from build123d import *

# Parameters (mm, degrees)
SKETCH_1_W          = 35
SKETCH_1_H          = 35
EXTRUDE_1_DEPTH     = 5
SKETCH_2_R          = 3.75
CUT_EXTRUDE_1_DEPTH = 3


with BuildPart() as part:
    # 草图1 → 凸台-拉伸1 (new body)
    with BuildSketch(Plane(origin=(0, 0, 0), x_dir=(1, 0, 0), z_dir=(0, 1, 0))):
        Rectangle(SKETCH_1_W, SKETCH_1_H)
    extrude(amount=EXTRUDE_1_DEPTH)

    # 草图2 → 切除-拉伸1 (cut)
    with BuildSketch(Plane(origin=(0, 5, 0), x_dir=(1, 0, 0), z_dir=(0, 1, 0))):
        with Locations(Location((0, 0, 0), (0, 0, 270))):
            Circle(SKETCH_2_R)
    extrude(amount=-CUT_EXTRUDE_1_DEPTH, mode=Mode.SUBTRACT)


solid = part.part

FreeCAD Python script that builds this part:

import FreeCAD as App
import Part
import Sketcher
from FreeCAD import Vector
Q = App.Units.Quantity


def add_polygon(sketch, points):
    """Adds a closed chain of lines whose ends are joined by coincident constraints."""
    first, n = sketch.GeometryCount, len(points)
    for a, b in zip(points, points[1:] + points[:1]):
        sketch.addGeometry(Part.LineSegment(App.Vector(*a, 0), App.Vector(*b, 0)), False)
    for i in range(n):
        sketch.addConstraint(Sketcher.Constraint("Coincident", first + i, 2, first + (i + 1) % n, 1))

doc = App.newDocument("Part")
params = doc.addObject("Spreadsheet::Sheet", "Params")
for row, (alias, value) in enumerate([
    ("sketch1_width", "35 mm"),
    ("pad1_length", "5 mm"),
    ("sketch2_diameter", "7.5 mm"),
    ("pocket1_length", "3 mm"),
], start=1):
    params.set(f"A{row}", alias)
    params.set(f"B{row}", "=" + value)
    params.setAlias(f"B{row}", alias)

body = doc.addObject("PartDesign::Body", "Body")

sketch1 = body.newObject("Sketcher::SketchObject", "Sketch")
sketch1.AttachmentSupport = (doc.getObject("XZ_Plane"), [""])
sketch1.MapMode = "FlatFace"
add_polygon(sketch1, [(-17.5, -17.5), (-17.5, 17.5), (17.5, 17.5), (17.5, -17.5)])
sketch1.addConstraint(Sketcher.Constraint("Vertical", 0))
sketch1.addConstraint(Sketcher.Constraint("Horizontal", 1))
sketch1.addConstraint(Sketcher.Constraint("Vertical", 2))
sketch1.addConstraint(Sketcher.Constraint("Horizontal", 3))
sketch1.addConstraint(Sketcher.Constraint("Symmetric", 0, 2, 2, 2, -1, 1))
sketch1.addConstraint(Sketcher.Constraint("Equal", 3, 0))
sketch1.addConstraint(Sketcher.Constraint("DistanceX", 1, 1, 1, 2, Q("35 mm")))
sketch1.setExpression("Constraints[10]", "Params.sketch1_width")
pad1 = body.newObject("PartDesign::Pad", "Pad")
pad1.Profile = sketch1
pad1.setExpression("Length", "Params.pad1_length")
pad1.Reversed = True

sketch2 = body.newObject("Sketcher::SketchObject", "Sketch001")
sketch2.AttachmentSupport = (doc.getObject("XZ_Plane"), [""])
sketch2.MapMode = "FlatFace"
sketch2.AttachmentOffset = App.Placement(Vector(0, 0, -5), App.Rotation())
sketch2.addGeometry(Part.Circle(Vector(0, 0, 0), Vector(0, 0, 1), 3.75), False)
sketch2.addConstraint(Sketcher.Constraint("Coincident", 0, 3, -1, 1))
sketch2.addConstraint(Sketcher.Constraint("Diameter", 0, Q("7.5 mm")))
sketch2.setExpression("Constraints[1]", "Params.sketch2_diameter")
pocket1 = body.newObject("PartDesign::Pocket", "Pocket")
pocket1.Profile = sketch2
pocket1.setExpression("Length", "Params.pocket1_length")
pocket1.Reversed = True

doc.recompute()
